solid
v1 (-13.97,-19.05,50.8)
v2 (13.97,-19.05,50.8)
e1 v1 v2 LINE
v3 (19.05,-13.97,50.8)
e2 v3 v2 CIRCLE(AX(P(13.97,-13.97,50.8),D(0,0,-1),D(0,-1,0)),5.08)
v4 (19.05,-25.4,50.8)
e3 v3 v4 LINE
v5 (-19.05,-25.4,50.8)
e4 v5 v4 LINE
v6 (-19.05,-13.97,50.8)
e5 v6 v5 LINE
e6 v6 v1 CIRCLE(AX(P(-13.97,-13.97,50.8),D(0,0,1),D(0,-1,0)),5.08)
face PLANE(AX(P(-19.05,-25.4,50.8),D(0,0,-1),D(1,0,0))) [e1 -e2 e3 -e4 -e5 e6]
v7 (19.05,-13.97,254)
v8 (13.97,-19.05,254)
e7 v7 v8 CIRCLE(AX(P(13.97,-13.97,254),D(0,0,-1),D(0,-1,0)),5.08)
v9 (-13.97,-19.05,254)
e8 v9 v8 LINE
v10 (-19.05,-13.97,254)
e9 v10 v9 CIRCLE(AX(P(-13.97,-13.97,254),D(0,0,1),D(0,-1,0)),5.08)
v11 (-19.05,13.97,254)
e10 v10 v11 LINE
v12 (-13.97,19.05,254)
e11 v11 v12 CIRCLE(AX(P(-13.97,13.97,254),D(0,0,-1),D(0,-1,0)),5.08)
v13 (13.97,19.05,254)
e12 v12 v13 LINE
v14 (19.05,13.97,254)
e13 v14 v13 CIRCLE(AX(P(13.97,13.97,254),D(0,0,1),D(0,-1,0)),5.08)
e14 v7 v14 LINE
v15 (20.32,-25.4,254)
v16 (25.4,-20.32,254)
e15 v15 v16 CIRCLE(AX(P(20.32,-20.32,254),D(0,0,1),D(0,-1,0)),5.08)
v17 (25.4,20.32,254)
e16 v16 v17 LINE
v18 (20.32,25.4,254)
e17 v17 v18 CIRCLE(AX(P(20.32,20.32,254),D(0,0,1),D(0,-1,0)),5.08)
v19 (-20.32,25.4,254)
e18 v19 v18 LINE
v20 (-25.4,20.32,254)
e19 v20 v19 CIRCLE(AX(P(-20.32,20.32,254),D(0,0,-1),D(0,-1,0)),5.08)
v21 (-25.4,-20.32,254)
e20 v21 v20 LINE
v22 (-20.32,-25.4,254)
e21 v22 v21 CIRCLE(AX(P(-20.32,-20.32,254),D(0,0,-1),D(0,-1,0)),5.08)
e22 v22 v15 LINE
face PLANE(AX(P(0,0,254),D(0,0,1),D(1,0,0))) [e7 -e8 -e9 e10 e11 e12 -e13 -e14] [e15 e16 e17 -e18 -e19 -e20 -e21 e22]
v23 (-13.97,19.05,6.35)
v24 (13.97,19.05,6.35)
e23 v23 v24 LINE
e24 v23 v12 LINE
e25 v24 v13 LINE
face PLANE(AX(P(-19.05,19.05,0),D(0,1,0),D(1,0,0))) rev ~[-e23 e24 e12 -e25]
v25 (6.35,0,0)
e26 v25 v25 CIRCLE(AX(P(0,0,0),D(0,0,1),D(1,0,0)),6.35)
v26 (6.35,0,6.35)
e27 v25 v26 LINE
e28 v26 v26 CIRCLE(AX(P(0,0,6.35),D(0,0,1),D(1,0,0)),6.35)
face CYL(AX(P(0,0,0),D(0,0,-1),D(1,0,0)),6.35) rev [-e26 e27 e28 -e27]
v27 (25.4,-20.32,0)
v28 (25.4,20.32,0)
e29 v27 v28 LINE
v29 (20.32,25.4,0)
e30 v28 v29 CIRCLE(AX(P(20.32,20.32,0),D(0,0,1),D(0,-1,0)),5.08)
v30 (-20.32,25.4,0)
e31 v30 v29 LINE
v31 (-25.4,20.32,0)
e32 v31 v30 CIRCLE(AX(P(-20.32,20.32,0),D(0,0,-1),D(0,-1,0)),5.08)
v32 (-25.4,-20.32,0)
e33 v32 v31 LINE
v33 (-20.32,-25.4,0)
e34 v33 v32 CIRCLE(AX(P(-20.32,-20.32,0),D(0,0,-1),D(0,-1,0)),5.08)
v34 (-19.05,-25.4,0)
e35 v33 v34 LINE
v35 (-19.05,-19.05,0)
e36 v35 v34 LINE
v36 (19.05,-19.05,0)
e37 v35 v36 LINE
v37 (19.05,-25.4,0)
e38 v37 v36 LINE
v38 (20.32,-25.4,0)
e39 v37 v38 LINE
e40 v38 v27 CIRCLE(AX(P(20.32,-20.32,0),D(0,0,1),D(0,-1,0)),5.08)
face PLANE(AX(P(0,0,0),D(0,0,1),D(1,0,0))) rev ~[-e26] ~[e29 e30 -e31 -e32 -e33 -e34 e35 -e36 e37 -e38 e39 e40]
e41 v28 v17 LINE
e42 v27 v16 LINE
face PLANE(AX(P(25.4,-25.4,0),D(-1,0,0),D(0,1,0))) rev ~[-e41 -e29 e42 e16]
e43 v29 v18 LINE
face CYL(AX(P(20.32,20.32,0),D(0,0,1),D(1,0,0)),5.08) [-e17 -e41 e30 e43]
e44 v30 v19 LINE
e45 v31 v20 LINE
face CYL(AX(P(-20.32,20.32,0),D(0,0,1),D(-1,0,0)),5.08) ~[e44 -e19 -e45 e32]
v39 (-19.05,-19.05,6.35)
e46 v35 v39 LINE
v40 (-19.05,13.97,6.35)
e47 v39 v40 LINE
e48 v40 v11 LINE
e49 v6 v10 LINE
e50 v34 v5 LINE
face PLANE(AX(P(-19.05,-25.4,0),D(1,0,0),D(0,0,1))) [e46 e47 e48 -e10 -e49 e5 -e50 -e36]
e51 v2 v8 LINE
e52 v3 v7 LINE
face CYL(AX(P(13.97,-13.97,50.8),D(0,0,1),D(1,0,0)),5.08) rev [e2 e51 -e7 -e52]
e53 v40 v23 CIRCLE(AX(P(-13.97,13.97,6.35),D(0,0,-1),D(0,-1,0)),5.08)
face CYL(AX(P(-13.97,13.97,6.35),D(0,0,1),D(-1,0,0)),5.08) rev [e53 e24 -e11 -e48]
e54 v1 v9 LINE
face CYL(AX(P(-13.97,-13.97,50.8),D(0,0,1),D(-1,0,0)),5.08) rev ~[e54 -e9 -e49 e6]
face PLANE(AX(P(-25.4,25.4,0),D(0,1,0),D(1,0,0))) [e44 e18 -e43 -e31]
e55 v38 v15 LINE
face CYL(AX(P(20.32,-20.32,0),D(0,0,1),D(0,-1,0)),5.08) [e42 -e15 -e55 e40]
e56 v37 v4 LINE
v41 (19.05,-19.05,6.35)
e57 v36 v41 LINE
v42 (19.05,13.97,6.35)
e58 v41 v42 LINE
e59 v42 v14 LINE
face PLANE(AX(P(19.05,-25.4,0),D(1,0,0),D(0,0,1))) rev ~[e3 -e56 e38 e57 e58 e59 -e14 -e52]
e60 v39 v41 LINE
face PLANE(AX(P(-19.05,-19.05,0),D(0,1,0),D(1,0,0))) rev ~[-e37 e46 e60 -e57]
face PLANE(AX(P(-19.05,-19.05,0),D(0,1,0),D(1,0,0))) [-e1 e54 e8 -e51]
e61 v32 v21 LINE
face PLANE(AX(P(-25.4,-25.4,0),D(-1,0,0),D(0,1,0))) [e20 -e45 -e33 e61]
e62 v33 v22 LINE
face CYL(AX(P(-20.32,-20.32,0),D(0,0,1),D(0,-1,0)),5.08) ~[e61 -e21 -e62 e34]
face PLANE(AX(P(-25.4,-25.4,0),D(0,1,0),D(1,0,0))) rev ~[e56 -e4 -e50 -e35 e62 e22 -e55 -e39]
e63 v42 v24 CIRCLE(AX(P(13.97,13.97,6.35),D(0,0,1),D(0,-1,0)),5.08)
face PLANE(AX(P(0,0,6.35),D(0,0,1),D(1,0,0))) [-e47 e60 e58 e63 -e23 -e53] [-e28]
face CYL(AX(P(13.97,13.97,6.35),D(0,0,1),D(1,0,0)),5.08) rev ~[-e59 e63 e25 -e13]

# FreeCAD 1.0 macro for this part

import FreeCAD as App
import Part
import Sketcher

V = App.Vector
Q = App.Units.Quantity


def edges_at(feature, points):
    """Names of the edges that pass closest to the given points."""
    edges = feature.Shape.Edges
    near = lambda p: min(range(len(edges)), key=lambda i: edges[i].distToShape(Part.Vertex(*p))[0])
    return sorted({f"Edge{near(p) + 1}" for p in points})

doc = App.newDocument("Part")
body = doc.addObject("PartDesign::Body", "Body")

sketch1 = body.newObject("Sketcher::SketchObject", "Sketch")
sketch1.AttachmentSupport = (doc.getObject("XY_Plane"), [""])
sketch1.MapMode = "FlatFace"
sketch1.addGeometry([
    Part.LineSegment(V(-25.4, 25.4, 0), V(-25.4, -25.4, 0)),
    Part.LineSegment(V(-25.4, -25.4, 0), V(25.4, -25.4, 0)),
    Part.LineSegment(V(25.4, -25.4, 0), V(25.4, 25.4, 0)),
    Part.LineSegment(V(25.4, 25.4, 0), V(-25.4, 25.4, 0)),
    Part.LineSegment(V(19.05, -19.05, 0), V(-19.05, -19.05, 0)),
    Part.LineSegment(V(-19.05, -19.05, 0), V(-19.05, 19.05, 0)),
    Part.LineSegment(V(-19.05, 19.05, 0), V(19.05, 19.05, 0)),
    Part.LineSegment(V(19.05, 19.05, 0), V(19.05, -19.05, 0)),
], False)
sketch1.addConstraint([
    Sketcher.Constraint("Coincident", 0, 2, 1, 1),
    Sketcher.Constraint("Coincident", 1, 2, 2, 1),
    Sketcher.Constraint("Coincident", 2, 2, 3, 1),
    Sketcher.Constraint("Coincident", 3, 2, 0, 1),
    Sketcher.Constraint("Coincident", 4, 2, 5, 1),
    Sketcher.Constraint("Coincident", 5, 2, 6, 1),
    Sketcher.Constraint("Coincident", 6, 2, 7, 1),
    Sketcher.Constraint("Coincident", 7, 2, 4, 1),
    Sketcher.Constraint("Vertical", 0),
    Sketcher.Constraint("Horizontal", 1),
    Sketcher.Constraint("Vertical", 2),
    Sketcher.Constraint("Horizontal", 3),
    Sketcher.Constraint("Horizontal", 4),
    Sketcher.Constraint("Vertical", 5),
    Sketcher.Constraint("Horizontal", 6),
    Sketcher.Constraint("Vertical", 7),
    Sketcher.Constraint("Symmetric", 0, 2, 2, 2, -1, 1),
    Sketcher.Constraint("Symmetric", 4, 2, 6, 2, -1, 1),
    Sketcher.Constraint("Equal", 3, 0),
    Sketcher.Constraint("Equal", 6, 5),
    Sketcher.Constraint("DistanceX", 1, 1, 1, 2, Q("2 in")),
    Sketcher.Constraint("DistanceX", 4, 2, 4, 1, Q("1.5 in")),
])
pad1 = body.newObject("PartDesign::Pad", "Pad")
pad1.Profile = sketch1
pad1.Length = Q("10 in")

sketch2 = body.newObject("Sketcher::SketchObject", "Sketch001")
sketch2.AttachmentSupport = (doc.getObject("XZ_Plane"), [""])
sketch2.MapMode = "FlatFace"
sketch2.AttachmentOffset = App.Placement(V(0, 0, 1 * 25.4), App.Rotation())
sketch2.addGeometry([
    Part.LineSegment(V(-19.05, 50.8, 0), V(-19.05, 0, 0)),
    Part.LineSegment(V(-19.05, 0, 0), V(19.05, 0, 0)),
    Part.LineSegment(V(19.05, 0, 0), V(19.05, 50.8, 0)),
    Part.LineSegment(V(19.05, 50.8, 0), V(-19.05, 50.8, 0)),
], False)
sketch2.addConstraint([
    Sketcher.Constraint("Coincident", 0, 2, 1, 1),
    Sketcher.Constraint("Coincident", 1, 2, 2, 1),
    Sketcher.Constraint("Coincident", 2, 2, 3, 1),
    Sketcher.Constraint("Coincident", 3, 2, 0, 1),
    Sketcher.Constraint("Vertical", 0),
    Sketcher.Constraint("Horizontal", 1),
    Sketcher.Constraint("Vertical", 2),
    Sketcher.Constraint("Horizontal", 3),
    Sketcher.Constraint("Symmetric", 0, 2, 1, 2, -1, 1),
    Sketcher.Constraint("DistanceY", 0, 2, 0, 1, Q("2 in")),
    Sketcher.Constraint("DistanceX", 1, 1, 1, 2, Q("1.5 in")),
])
pocket1 = body.newObject("PartDesign::Pocket", "Pocket")
pocket1.Profile = sketch2
pocket1.Length = Q("0.25 in")

sketch3 = body.newObject("Sketcher::SketchObject", "Sketch002")
sketch3.AttachmentSupport = (doc.getObject("XY_Plane"), [""])
sketch3.MapMode = "FlatFace"
sketch3.addGeometry([
    Part.LineSegment(V(-19.05, 19.05, 0), V(-19.05, -19.05, 0)),
    Part.LineSegment(V(-19.05, -19.05, 0), V(19.05, -19.05, 0)),
    Part.LineSegment(V(19.05, -19.05, 0), V(19.05, 19.05, 0)),
    Part.LineSegment(V(19.05, 19.05, 0), V(-19.05, 19.05, 0)),
    Part.Circle(V(0, 0, 0), V(0, 0, 1), 6.35),
], False)
sketch3.addConstraint([
    Sketcher.Constraint("Coincident", 0, 2, 1, 1),
    Sketcher.Constraint("Coincident", 1, 2, 2, 1),
    Sketcher.Constraint("Coincident", 2, 2, 3, 1),
    Sketcher.Constraint("Coincident", 3, 2, 0, 1),
    Sketcher.Constraint("Vertical", 0),
    Sketcher.Constraint("Horizontal", 1),
    Sketcher.Constraint("Vertical", 2),
    Sketcher.Constraint("Horizontal", 3),
    Sketcher.Constraint("Coincident", 4, 3, -1, 1),
    Sketcher.Constraint("Symmetric", 0, 2, 2, 2, -1, 1),
    Sketcher.Constraint("Equal", 3, 0),
    Sketcher.Constraint("Diameter", 4, Q("0.5 in")),
    Sketcher.Constraint("DistanceX", 1, 1, 1, 2, Q("1.5 in")),
])
pad2 = body.newObject("PartDesign::Pad", "Pad001")
pad2.Profile = sketch3
pad2.Length = Q("0.25 in")
doc.recompute()

fillet = body.newObject("PartDesign::Fillet", "Fillet")
fillet.Base = (pad2, edges_at(pad2, [
    (-25.4, -25.4, 127),
    (-25.4, 25.4, 127),
    (25.4, -25.4, 127),
    (25.4, 25.4, 127),
    (-19.05, 19.05, 130.175),
    (19.05, 19.05, 130.175),
    (-19.05, -19.05, 152.4),
    (19.05, -19.05, 152.4),
]))
fillet.Radius = Q("0.2 in")

doc.recompute()
